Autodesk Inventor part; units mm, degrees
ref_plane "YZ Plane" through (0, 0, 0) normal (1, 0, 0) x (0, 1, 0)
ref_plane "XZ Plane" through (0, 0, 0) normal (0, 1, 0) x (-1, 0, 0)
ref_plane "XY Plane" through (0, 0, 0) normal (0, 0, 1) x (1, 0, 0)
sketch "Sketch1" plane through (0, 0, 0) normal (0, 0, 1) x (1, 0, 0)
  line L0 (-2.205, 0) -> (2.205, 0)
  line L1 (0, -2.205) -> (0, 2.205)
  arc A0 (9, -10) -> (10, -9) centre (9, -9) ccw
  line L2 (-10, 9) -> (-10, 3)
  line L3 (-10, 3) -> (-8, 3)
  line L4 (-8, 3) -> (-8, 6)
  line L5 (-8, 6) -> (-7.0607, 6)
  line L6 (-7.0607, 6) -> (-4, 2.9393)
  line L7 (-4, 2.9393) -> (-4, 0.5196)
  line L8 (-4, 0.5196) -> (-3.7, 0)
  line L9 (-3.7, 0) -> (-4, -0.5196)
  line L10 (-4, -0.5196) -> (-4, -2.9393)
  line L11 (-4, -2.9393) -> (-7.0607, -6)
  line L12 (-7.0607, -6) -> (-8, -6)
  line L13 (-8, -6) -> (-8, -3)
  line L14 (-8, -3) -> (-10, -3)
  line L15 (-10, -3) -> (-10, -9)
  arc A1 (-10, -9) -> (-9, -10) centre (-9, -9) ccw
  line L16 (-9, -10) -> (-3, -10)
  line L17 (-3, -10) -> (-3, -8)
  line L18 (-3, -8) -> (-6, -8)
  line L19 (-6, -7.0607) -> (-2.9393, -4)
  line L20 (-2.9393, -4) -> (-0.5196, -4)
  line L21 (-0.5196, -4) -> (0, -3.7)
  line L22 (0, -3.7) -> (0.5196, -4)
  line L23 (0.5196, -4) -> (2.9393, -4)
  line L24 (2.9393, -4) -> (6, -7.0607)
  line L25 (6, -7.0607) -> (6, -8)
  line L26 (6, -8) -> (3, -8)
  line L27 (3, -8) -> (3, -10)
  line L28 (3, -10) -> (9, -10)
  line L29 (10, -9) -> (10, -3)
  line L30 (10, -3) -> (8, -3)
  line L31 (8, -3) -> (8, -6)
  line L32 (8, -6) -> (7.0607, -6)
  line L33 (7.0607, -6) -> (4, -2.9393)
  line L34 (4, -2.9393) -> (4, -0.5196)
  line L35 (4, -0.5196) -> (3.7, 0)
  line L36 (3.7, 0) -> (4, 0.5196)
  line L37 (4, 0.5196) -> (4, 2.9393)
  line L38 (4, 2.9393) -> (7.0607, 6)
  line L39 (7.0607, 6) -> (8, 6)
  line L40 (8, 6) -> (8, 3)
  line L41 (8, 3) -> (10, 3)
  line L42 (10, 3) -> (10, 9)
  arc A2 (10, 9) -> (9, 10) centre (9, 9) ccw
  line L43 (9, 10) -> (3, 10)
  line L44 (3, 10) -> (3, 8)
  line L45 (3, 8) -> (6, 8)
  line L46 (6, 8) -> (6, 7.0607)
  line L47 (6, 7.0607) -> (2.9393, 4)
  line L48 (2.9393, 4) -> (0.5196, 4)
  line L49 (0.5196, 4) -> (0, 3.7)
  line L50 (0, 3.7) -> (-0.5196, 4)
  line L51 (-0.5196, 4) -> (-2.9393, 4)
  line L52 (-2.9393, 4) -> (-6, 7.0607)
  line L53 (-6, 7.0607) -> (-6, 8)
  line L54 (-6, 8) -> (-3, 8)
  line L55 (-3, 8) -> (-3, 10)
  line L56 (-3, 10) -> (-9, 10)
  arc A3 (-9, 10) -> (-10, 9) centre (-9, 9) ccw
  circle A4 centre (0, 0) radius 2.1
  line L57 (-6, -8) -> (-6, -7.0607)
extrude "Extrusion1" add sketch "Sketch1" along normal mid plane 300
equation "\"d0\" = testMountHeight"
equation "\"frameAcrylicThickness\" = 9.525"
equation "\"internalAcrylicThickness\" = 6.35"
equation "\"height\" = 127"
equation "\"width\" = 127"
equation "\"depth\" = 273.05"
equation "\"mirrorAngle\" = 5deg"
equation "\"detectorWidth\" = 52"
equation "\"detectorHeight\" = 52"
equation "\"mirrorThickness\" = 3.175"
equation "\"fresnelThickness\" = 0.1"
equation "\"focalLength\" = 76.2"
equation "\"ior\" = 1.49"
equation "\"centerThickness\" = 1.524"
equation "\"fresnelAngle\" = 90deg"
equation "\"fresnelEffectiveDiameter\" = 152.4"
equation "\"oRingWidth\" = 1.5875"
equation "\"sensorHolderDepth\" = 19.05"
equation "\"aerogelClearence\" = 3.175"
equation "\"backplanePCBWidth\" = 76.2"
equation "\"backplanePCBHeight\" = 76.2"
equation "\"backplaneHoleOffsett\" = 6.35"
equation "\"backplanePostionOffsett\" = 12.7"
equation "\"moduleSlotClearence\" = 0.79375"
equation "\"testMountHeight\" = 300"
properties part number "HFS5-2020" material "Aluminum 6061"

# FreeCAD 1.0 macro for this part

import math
import FreeCAD as App
import Part
import Sketcher
Q = App.Units.Quantity

doc = App.newDocument("Part")
body = doc.addObject("PartDesign::Body", "Body")

# Sketch on XY plane
sketch1 = doc.addObject("Sketcher::SketchObject", "Sketch")
body.addObject(sketch1)
sketch1.AttachmentSupport = (doc.XY_Plane, [""])
sketch1.MapMode = "FlatFace"
sketch1.addGeometry([
    Part.LineSegment(App.Vector(3, -10, 0), App.Vector(9, -10, 0)),  # 0
    Part.ArcOfCircle(Part.Circle(App.Vector(9, -9, 0), App.Vector(0, 0, 1), 1), math.radians(-90), math.radians(0)),  # 1
    Part.LineSegment(App.Vector(10, -9, 0), App.Vector(10, -3, 0)),  # 2
    Part.LineSegment(App.Vector(10, -3, 0), App.Vector(8, -3, 0)),  # 3
    Part.LineSegment(App.Vector(8, -3, 0), App.Vector(8, -6, 0)),  # 4
    Part.LineSegment(App.Vector(8, -6, 0), App.Vector(7.1, -6, 0)),  # 5
    Part.LineSegment(App.Vector(7.1, -6, 0), App.Vector(4, -2.9, 0)),  # 6
    Part.LineSegment(App.Vector(4, -2.9, 0), App.Vector(4, -0.5, 0)),  # 7
    Part.LineSegment(App.Vector(4, -0.5, 0), App.Vector(3.7, 0, 0)),  # 8
    Part.LineSegment(App.Vector(3.7, 0, 0), App.Vector(4, 0.5, 0)),  # 9
    Part.LineSegment(App.Vector(4, 0.5, 0), App.Vector(4, 2.9, 0)),  # 10
    Part.LineSegment(App.Vector(4, 2.9, 0), App.Vector(7.1, 6, 0)),  # 11
    Part.LineSegment(App.Vector(7.1, 6, 0), App.Vector(8, 6, 0)),  # 12
    Part.LineSegment(App.Vector(8, 6, 0), App.Vector(8, 3, 0)),  # 13
    Part.LineSegment(App.Vector(8, 3, 0), App.Vector(10, 3, 0)),  # 14
    Part.LineSegment(App.Vector(10, 3, 0), App.Vector(10, 9, 0)),  # 15
    Part.ArcOfCircle(Part.Circle(App.Vector(9, 9, 0), App.Vector(0, 0, 1), 1), math.radians(0), math.radians(90)),  # 16
    Part.LineSegment(App.Vector(9, 10, 0), App.Vector(3, 10, 0)),  # 17
    Part.LineSegment(App.Vector(3, 10, 0), App.Vector(3, 8, 0)),  # 18
    Part.LineSegment(App.Vector(3, 8, 0), App.Vector(6, 8, 0)),  # 19
    Part.LineSegment(App.Vector(6, 8, 0), App.Vector(6, 7.1, 0)),  # 20
    Part.LineSegment(App.Vector(6, 7.1, 0), App.Vector(2.9, 4, 0)),  # 21
    Part.LineSegment(App.Vector(2.9, 4, 0), App.Vector(0.5, 4, 0)),  # 22
    Part.LineSegment(App.Vector(0.5, 4, 0), App.Vector(0, 3.7, 0)),  # 23
    Part.LineSegment(App.Vector(0, 3.7, 0), App.Vector(-0.5, 4, 0)),  # 24
    Part.LineSegment(App.Vector(-0.5, 4, 0), App.Vector(-2.9, 4, 0)),  # 25
    Part.LineSegment(App.Vector(-2.9, 4, 0), App.Vector(-6, 7.1, 0)),  # 26
    Part.LineSegment(App.Vector(-6, 7.1, 0), App.Vector(-6, 8, 0)),  # 27
    Part.LineSegment(App.Vector(-6, 8, 0), App.Vector(-3, 8, 0)),  # 28
    Part.LineSegment(App.Vector(-3, 8, 0), App.Vector(-3, 10, 0)),  # 29
    Part.LineSegment(App.Vector(-3, 10, 0), App.Vector(-9, 10, 0)),  # 30
    Part.ArcOfCircle(Part.Circle(App.Vector(-9, 9, 0), App.Vector(0, 0, 1), 1), math.radians(90), math.radians(180)),  # 31
    Part.LineSegment(App.Vector(-10, 9, 0), App.Vector(-10, 3, 0)),  # 32
    Part.LineSegment(App.Vector(-10, 3, 0), App.Vector(-8, 3, 0)),  # 33
    Part.LineSegment(App.Vector(-8, 3, 0), App.Vector(-8, 6, 0)),  # 34
    Part.LineSegment(App.Vector(-8, 6, 0), App.Vector(-7.1, 6, 0)),  # 35
    Part.LineSegment(App.Vector(-7.1, 6, 0), App.Vector(-4, 2.9, 0)),  # 36
    Part.LineSegment(App.Vector(-4, 2.9, 0), App.Vector(-4, 0.5, 0)),  # 37
    Part.LineSegment(App.Vector(-4, 0.5, 0), App.Vector(-3.7, 0, 0)),  # 38
    Part.LineSegment(App.Vector(-3.7, 0, 0), App.Vector(-4, -0.5, 0)),  # 39
    Part.LineSegment(App.Vector(-4, -0.5, 0), App.Vector(-4, -2.9, 0)),  # 40
    Part.LineSegment(App.Vector(-4, -2.9, 0), App.Vector(-7.1, -6, 0)),  # 41
    Part.LineSegment(App.Vector(-7.1, -6, 0), App.Vector(-8, -6, 0)),  # 42
    Part.LineSegment(App.Vector(-8, -6, 0), App.Vector(-8, -3, 0)),  # 43
    Part.LineSegment(App.Vector(-8, -3, 0), App.Vector(-10, -3, 0)),  # 44
    Part.LineSegment(App.Vector(-10, -3, 0), App.Vector(-10, -9, 0)),  # 45
    Part.ArcOfCircle(Part.Circle(App.Vector(-9, -9, 0), App.Vector(0, 0, 1), 1), math.radians(180), math.radians(270)),  # 46
    Part.LineSegment(App.Vector(-9, -10, 0), App.Vector(-3, -10, 0)),  # 47
    Part.LineSegment(App.Vector(-3, -10, 0), App.Vector(-3, -8, 0)),  # 48
    Part.LineSegment(App.Vector(-3, -8, 0), App.Vector(-6, -8, 0)),  # 49
    Part.LineSegment(App.Vector(-6, -8, 0), App.Vector(-6, -7.1, 0)),  # 50
    Part.LineSegment(App.Vector(-6, -7.1, 0), App.Vector(-2.9, -4, 0)),  # 51
    Part.LineSegment(App.Vector(-2.9, -4, 0), App.Vector(-0.5, -4, 0)),  # 52
    Part.LineSegment(App.Vector(-0.5, -4, 0), App.Vector(0, -3.7, 0)),  # 53
    Part.LineSegment(App.Vector(0, -3.7, 0), App.Vector(0.5, -4, 0)),  # 54
    Part.LineSegment(App.Vector(0.5, -4, 0), App.Vector(2.9, -4, 0)),  # 55
    Part.LineSegment(App.Vector(2.9, -4, 0), App.Vector(6, -7.1, 0)),  # 56
    Part.LineSegment(App.Vector(6, -7.1, 0), App.Vector(6, -8, 0)),  # 57
    Part.LineSegment(App.Vector(6, -8, 0), App.Vector(3, -8, 0)),  # 58
    Part.LineSegment(App.Vector(3, -8, 0), App.Vector(3, -10, 0)),  # 59
    Part.Circle(App.Vector(0, 0, 0), App.Vector(0, 0, 1), 2.1),  # 60
], False)
sketch1.addConstraint([
    Sketcher.Constraint("Tangent", 0, 2, 1, 1),
    Sketcher.Constraint("Tangent", 1, 2, 2, 1),
    Sketcher.Constraint("Coincident", 2, 2, 3, 1),
    Sketcher.Constraint("Coincident", 3, 2, 4, 1),
    Sketcher.Constraint("Coincident", 4, 2, 5, 1),
    Sketcher.Constraint("Coincident", 5, 2, 6, 1),
    Sketcher.Constraint("Coincident", 6, 2, 7, 1),
    Sketcher.Constraint("Coincident", 7, 2, 8, 1),
    Sketcher.Constraint("Coincident", 8, 2, 9, 1),
    Sketcher.Constraint("Coincident", 9, 2, 10, 1),
    Sketcher.Constraint("Coincident", 10, 2, 11, 1),
    Sketcher.Constraint("Coincident", 11, 2, 12, 1),
    Sketcher.Constraint("Coincident", 12, 2, 13, 1),
    Sketcher.Constraint("Coincident", 13, 2, 14, 1),
    Sketcher.Constraint("Coincident", 14, 2, 15, 1),
    Sketcher.Constraint("Tangent", 15, 2, 16, 1),
    Sketcher.Constraint("Tangent", 16, 2, 17, 1),
    Sketcher.Constraint("Coincident", 17, 2, 18, 1),
    Sketcher.Constraint("Coincident", 18, 2, 19, 1),
    Sketcher.Constraint("Coincident", 19, 2, 20, 1),
    Sketcher.Constraint("Coincident", 20, 2, 21, 1),
    Sketcher.Constraint("Coincident", 21, 2, 22, 1),
    Sketcher.Constraint("Coincident", 22, 2, 23, 1),
    Sketcher.Constraint("Coincident", 23, 2, 24, 1),
    Sketcher.Constraint("Coincident", 24, 2, 25, 1),
    Sketcher.Constraint("Coincident", 25, 2, 26, 1),
    Sketcher.Constraint("Coincident", 26, 2, 27, 1),
    Sketcher.Constraint("Coincident", 27, 2, 28, 1),
    Sketcher.Constraint("Coincident", 28, 2, 29, 1),
    Sketcher.Constraint("Coincident", 29, 2, 30, 1),
    Sketcher.Constraint("Tangent", 30, 2, 31, 1),
    Sketcher.Constraint("Tangent", 31, 2, 32, 1),
    Sketcher.Constraint("Coincident", 32, 2, 33, 1),
    Sketcher.Constraint("Coincident", 33, 2, 34, 1),
    Sketcher.Constraint("Coincident", 34, 2, 35, 1),
    Sketcher.Constraint("Coincident", 35, 2, 36, 1),
    Sketcher.Constraint("Coincident", 36, 2, 37, 1),
    Sketcher.Constraint("Coincident", 37, 2, 38, 1),
    Sketcher.Constraint("Coincident", 38, 2, 39, 1),
    Sketcher.Constraint("Coincident", 39, 2, 40, 1),
    Sketcher.Constraint("Coincident", 40, 2, 41, 1),
    Sketcher.Constraint("Coincident", 41, 2, 42, 1),
    Sketcher.Constraint("Coincident", 42, 2, 43, 1),
    Sketcher.Constraint("Coincident", 43, 2, 44, 1),
    Sketcher.Constraint("Coincident", 44, 2, 45, 1),
    Sketcher.Constraint("Tangent", 45, 2, 46, 1),
    Sketcher.Constraint("Tangent", 46, 2, 47, 1),
    Sketcher.Constraint("Coincident", 47, 2, 48, 1),
    Sketcher.Constraint("Coincident", 48, 2, 49, 1),
    Sketcher.Constraint("Coincident", 49, 2, 50, 1),
    Sketcher.Constraint("Coincident", 50, 2, 51, 1),
    Sketcher.Constraint("Coincident", 51, 2, 52, 1),
    Sketcher.Constraint("Coincident", 52, 2, 53, 1),
    Sketcher.Constraint("Coincident", 53, 2, 54, 1),
    Sketcher.Constraint("Coincident", 54, 2, 55, 1),
    Sketcher.Constraint("Coincident", 55, 2, 56, 1),
    Sketcher.Constraint("Coincident", 56, 2, 57, 1),
    Sketcher.Constraint("Coincident", 57, 2, 58, 1),
    Sketcher.Constraint("Coincident", 58, 2, 59, 1),
    Sketcher.Constraint("Coincident", 59, 2, 0, 1),
    Sketcher.Constraint("Horizontal", 0),
    Sketcher.Constraint("Vertical", 2),
    Sketcher.Constraint("Horizontal", 3),
    Sketcher.Constraint("Vertical", 4),
    Sketcher.Constraint("Horizontal", 5),
    Sketcher.Constraint("Vertical", 7),
    Sketcher.Constraint("Vertical", 10),
    Sketcher.Constraint("Horizontal", 12),
    Sketcher.Constraint("Vertical", 13),
    Sketcher.Constraint("Horizontal", 14),
    Sketcher.Constraint("Vertical", 15),
    Sketcher.Constraint("Horizontal", 17),
    Sketcher.Constraint("Vertical", 18),
    Sketcher.Constraint("Horizontal", 19),
    Sketcher.Constraint("Vertical", 20),
    Sketcher.Constraint("Horizontal", 22),
    Sketcher.Constraint("Horizontal", 25),
    Sketcher.Constraint("Vertical", 27),
    Sketcher.Constraint("Horizontal", 28),
    Sketcher.Constraint("Vertical", 29),
    Sketcher.Constraint("Horizontal", 30),
    Sketcher.Constraint("Vertical", 32),
    Sketcher.Constraint("Horizontal", 33),
    Sketcher.Constraint("Vertical", 34),
    Sketcher.Constraint("Horizontal", 35),
    Sketcher.Constraint("Vertical", 37),
    Sketcher.Constraint("Vertical", 40),
    Sketcher.Constraint("Horizontal", 42),
    Sketcher.Constraint("Vertical", 43),
    Sketcher.Constraint("Horizontal", 44),
    Sketcher.Constraint("Vertical", 45),
    Sketcher.Constraint("Horizontal", 47),
    Sketcher.Constraint("Vertical", 48),
    Sketcher.Constraint("Horizontal", 49),
    Sketcher.Constraint("Vertical", 50),
    Sketcher.Constraint("Horizontal", 52),
    Sketcher.Constraint("Horizontal", 55),
    Sketcher.Constraint("Vertical", 57),
    Sketcher.Constraint("Horizontal", 58),
    Sketcher.Constraint("Vertical", 59),
    Sketcher.Constraint("Coincident", 60, 3, -1, 1),
    Sketcher.Constraint("Equal", 1, 16),
    Sketcher.Constraint("Equal", 16, 31),
    Sketcher.Constraint("Equal", 31, 46),
    Sketcher.Constraint("Symmetric", 1, 3, 31, 3, -1, 1),
    Sketcher.Constraint("Symmetric", 16, 3, 46, 3, -1, 1),
    Sketcher.Constraint("Symmetric", 3, 2, 33, 2, -1, 1),
    Sketcher.Constraint("Symmetric", 5, 2, 35, 2, -1, 1),
    Sketcher.Constraint("Symmetric", 6, 2, 36, 2, -1, 1),
    Sketcher.Constraint("Symmetric", 8, 2, 38, 2, -1, 1),
    Sketcher.Constraint("Symmetric", 9, 2, 39, 2, -1, 1),
    Sketcher.Constraint("Symmetric", 11, 2, 41, 2, -1, 1),
    Sketcher.Constraint("Symmetric", 13, 2, 43, 2, -1, 1),
    Sketcher.Constraint("Symmetric", 18, 2, 48, 2, -1, 1),
    Sketcher.Constraint("Symmetric", 20, 2, 50, 2, -1, 1),
    Sketcher.Constraint("Symmetric", 21, 2, 51, 2, -1, 1),
    Sketcher.Constraint("Symmetric", 23, 2, 53, 2, -1, 1),
    Sketcher.Constraint("Symmetric", 24, 2, 54, 2, -1, 1),
    Sketcher.Constraint("Symmetric", 26, 2, 56, 2, -1, 1),
    Sketcher.Constraint("Symmetric", 28, 2, 58, 2, -1, 1),
    Sketcher.Constraint("Symmetric", 16, 3, 31, 3, -2),
    Sketcher.Constraint("Symmetric", 22, 2, 24, 2, -2),
    Sketcher.Constraint("Symmetric", 20, 2, 26, 2, -2),
    Sketcher.Constraint("Symmetric", 18, 2, 28, 2, -2),
    Sketcher.Constraint("Symmetric", 13, 2, 33, 2, -2),
    Sketcher.Constraint("Symmetric", 11, 2, 35, 2, -2),
    Sketcher.Constraint("Symmetric", 10, 2, 36, 2, -2),
    Sketcher.Constraint("PointOnObject", 8, 2, -1),
    Sketcher.Constraint("PointOnObject", 23, 2, -2),
    Sketcher.Constraint("Perpendicular", 6, 11),
    Sketcher.Constraint("Parallel", 11, 21),
    Sketcher.Constraint("Perpendicular", 8, 23),
    Sketcher.Constraint("Perpendicular", 9, 24),
    Sketcher.Constraint("Perpendicular", 21, 26),
    Sketcher.Constraint("Perpendicular", 23, 38),
    Sketcher.Constraint("Perpendicular", 36, 41),
    Sketcher.Constraint("Perpendicular", 38, 53),
    Sketcher.Constraint("Perpendicular", 51, 56),
    Sketcher.Constraint("Equal", 47, 2),
    Sketcher.Constraint("Equal", 58, 4),
    Sketcher.Constraint("Equal", 55, 7),
    Sketcher.Constraint("Equal", 44, 18),
    Sketcher.Constraint("Equal", 42, 20),
    Sketcher.Constraint("Equal", 11, 21),
    Sketcher.Constraint("Equal", 9, 23),
    Sketcher.Constraint("Radius", 1, 1.0),
    Sketcher.Constraint("Diameter", 60, 4.2),
    Sketcher.Constraint("DistanceX", 0, 1, 0, 2, 6.0),
    Sketcher.Constraint("DistanceX", 3, 2, 3, 1, 2.0),
    Sketcher.Constraint("DistanceX", 19, 1, 19, 2, 3.0),
    Sketcher.Constraint("Angle", 8, Q("120.0007 deg")),
    Sketcher.Constraint("DistanceX", -1, 1, 1, 3, 9.0),
    Sketcher.Constraint("DistanceX", -1, 1, 6, 2, 4.0),
    Sketcher.Constraint("Distance", 8, 0.6),
    Sketcher.Constraint("DistanceX", 5, 2, 5, 1, 0.9393),
])
pad1 = doc.addObject("PartDesign::Pad", "Pad")
body.addObject(pad1)
pad1.Profile = sketch1
pad1.Length = 300
pad1.Midplane = True

doc.recompute()
